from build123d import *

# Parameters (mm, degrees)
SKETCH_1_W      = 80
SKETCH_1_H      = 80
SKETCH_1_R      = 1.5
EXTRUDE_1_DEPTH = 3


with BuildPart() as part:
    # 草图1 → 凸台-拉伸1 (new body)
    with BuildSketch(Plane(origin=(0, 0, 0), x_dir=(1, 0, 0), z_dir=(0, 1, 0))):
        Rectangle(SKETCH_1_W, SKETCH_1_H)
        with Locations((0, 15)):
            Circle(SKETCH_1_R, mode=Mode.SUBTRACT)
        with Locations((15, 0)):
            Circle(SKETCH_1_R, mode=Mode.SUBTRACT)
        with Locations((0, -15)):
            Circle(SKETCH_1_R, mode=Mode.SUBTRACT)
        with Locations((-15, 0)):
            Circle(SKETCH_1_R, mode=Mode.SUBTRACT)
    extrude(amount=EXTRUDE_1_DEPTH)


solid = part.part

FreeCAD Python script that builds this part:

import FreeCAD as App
import Part
import Sketcher
Q = App.Units.Quantity

doc = App.newDocument("Part")
body = doc.addObject("PartDesign::Body", "Body")

# Sketch on XZ plane
sketch1 = body.newObject("Sketcher::SketchObject", "Sketch")
sketch1.AttachmentSupport = (doc.getObject("XZ_Plane"), [""])
sketch1.MapMode = "FlatFace"
sketch1.addGeometry([
    Part.LineSegment(App.Vector(-40, -40, 0), App.Vector(-40, 40, 0)),  # 0
    Part.LineSegment(App.Vector(-40, 40, 0), App.Vector(40, 40, 0)),  # 1
    Part.LineSegment(App.Vector(40, 40, 0), App.Vector(40, -40, 0)),  # 2
    Part.LineSegment(App.Vector(40, -40, 0), App.Vector(-40, -40, 0)),  # 3
    Part.Circle(App.Vector(0, 15, 0), App.Vector(0, 0, 1), 1.5),  # 4
    Part.Circle(App.Vector(-15, 0, 0), App.Vector(0, 0, 1), 1.5),  # 5
    Part.Circle(App.Vector(15, 0, 0), App.Vector(0, 0, 1), 1.5),  # 6
    Part.Circle(App.Vector(0, -15, 0), App.Vector(0, 0, 1), 1.5),  # 7
], False)
sketch1.addConstraint([
    Sketcher.Constraint("Coincident", 0, 2, 1, 1),
    Sketcher.Constraint("Coincident", 1, 2, 2, 1),
    Sketcher.Constraint("Coincident", 2, 2, 3, 1),
    Sketcher.Constraint("Coincident", 3, 2, 0, 1),
    Sketcher.Constraint("Vertical", 0),
    Sketcher.Constraint("Horizontal", 1),
    Sketcher.Constraint("Vertical", 2),
    Sketcher.Constraint("Horizontal", 3),
    Sketcher.Constraint("Equal", 4, 5),
    Sketcher.Constraint("Equal", 5, 6),
    Sketcher.Constraint("Equal", 6, 7),
    Sketcher.Constraint("Symmetric", 5, 3, 6, 3, -1, 1),
    Sketcher.Constraint("Symmetric", 4, 3, 7, 3, -1, 1),
    Sketcher.Constraint("Symmetric", 0, 2, 2, 2, -1, 1),
    Sketcher.Constraint("PointOnObject", 4, 3, -2),
    Sketcher.Constraint("PointOnObject", 5, 3, -1),
    Sketcher.Constraint("Equal", 3, 0),
    Sketcher.Constraint("Diameter", 4, Q("3 mm")),
    Sketcher.Constraint("DistanceX", 1, 1, 1, 2, Q("80 mm")),
    Sketcher.Constraint("DistanceY", -1, 1, 4, 3, Q("15 mm")),
    Sketcher.Constraint("DistanceX", 5, 3, -1, 1, Q("15 mm")),
])
pad1 = body.newObject("PartDesign::Pad", "Pad")
pad1.Profile = sketch1
pad1.Length = 3
pad1.Reversed = True

doc.recompute()
